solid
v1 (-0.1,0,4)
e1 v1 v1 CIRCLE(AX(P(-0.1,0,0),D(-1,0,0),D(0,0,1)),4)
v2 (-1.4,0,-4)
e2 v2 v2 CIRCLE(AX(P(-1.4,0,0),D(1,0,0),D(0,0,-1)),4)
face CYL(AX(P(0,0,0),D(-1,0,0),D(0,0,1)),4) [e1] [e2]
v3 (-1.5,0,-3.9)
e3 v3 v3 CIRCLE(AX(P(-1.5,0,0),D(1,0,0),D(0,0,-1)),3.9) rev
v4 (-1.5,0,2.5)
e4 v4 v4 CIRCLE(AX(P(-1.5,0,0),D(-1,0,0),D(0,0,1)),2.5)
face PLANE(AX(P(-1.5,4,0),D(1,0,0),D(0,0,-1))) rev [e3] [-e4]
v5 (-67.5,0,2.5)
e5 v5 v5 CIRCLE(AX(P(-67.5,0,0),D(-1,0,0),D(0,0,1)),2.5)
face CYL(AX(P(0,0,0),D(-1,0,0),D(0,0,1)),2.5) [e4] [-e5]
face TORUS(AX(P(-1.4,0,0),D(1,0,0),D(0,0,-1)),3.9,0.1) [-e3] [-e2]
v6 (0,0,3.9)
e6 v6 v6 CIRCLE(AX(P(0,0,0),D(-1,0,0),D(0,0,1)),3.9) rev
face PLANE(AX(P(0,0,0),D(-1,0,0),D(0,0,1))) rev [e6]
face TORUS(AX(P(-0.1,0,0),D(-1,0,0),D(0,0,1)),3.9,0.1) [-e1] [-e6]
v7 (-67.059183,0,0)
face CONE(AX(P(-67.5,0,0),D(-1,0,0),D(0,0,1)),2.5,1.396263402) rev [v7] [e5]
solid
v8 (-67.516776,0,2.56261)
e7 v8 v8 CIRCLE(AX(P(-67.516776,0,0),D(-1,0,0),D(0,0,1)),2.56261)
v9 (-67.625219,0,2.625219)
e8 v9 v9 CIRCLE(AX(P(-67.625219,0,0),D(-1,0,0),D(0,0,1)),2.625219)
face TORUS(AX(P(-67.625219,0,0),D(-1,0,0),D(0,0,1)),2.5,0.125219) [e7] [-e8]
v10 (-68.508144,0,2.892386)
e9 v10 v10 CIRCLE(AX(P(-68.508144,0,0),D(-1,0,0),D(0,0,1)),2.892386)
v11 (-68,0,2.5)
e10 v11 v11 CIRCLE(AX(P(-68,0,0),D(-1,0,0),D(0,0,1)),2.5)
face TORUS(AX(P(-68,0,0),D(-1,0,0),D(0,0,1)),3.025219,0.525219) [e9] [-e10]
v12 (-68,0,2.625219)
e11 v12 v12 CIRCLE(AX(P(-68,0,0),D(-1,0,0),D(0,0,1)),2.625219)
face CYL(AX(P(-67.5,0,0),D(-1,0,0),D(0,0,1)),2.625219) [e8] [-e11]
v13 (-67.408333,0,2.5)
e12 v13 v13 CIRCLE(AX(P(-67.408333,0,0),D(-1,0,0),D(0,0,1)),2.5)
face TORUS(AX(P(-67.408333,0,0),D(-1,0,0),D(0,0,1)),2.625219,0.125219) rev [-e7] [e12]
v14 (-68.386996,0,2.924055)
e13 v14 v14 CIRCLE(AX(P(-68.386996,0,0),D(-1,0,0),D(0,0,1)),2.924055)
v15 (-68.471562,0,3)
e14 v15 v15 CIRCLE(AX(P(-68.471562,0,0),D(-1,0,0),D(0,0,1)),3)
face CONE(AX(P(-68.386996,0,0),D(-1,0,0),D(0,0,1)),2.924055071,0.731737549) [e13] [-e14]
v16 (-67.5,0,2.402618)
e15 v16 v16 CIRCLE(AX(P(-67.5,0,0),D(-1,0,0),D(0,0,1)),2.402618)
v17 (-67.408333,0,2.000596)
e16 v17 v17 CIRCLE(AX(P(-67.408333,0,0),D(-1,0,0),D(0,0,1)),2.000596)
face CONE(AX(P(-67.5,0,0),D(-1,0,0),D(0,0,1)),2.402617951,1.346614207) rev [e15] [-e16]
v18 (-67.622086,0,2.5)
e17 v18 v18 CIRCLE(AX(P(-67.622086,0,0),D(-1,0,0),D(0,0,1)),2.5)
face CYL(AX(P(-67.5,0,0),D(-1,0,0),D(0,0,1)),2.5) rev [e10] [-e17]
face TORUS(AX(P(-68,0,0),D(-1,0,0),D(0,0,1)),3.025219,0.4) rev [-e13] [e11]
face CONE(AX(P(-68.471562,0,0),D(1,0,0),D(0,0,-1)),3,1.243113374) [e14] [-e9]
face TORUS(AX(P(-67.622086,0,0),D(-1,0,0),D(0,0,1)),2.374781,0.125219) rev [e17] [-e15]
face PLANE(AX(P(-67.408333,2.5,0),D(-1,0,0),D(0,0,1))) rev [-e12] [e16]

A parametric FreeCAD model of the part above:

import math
import FreeCAD as App
import Part
import Sketcher

V = App.Vector
Q = App.Units.Quantity


def edges_at(feature, points):
    """Names of the edges that pass closest to the given points."""
    edges = feature.Shape.Edges
    near = lambda p: min(range(len(edges)), key=lambda i: edges[i].distToShape(Part.Vertex(*p))[0])
    return sorted({f"Edge{near(p) + 1}" for p in points})


def add_polygon(sketch, points):
    """Adds a closed chain of lines whose ends are joined by coincident constraints."""
    first, n = sketch.GeometryCount, len(points)
    for a, b in zip(points, points[1:] + points[:1]):
        sketch.addGeometry(Part.LineSegment(App.Vector(*a, 0), App.Vector(*b, 0)), False)
    for i in range(n):
        sketch.addConstraint(Sketcher.Constraint("Coincident", first + i, 2, first + (i + 1) % n, 1))

doc = App.newDocument("Part")
body = doc.addObject("PartDesign::Body", "Body")

sketch1 = body.newObject("Sketcher::SketchObject", "Sketch")
sketch1.AttachmentSupport = (doc.getObject("XY_Plane"), [""])
sketch1.MapMode = "FlatFace"
add_polygon(sketch1, [(-67.5, 0), (0, 0), (0, 4), (-1.5, 4), (-1.5, 2.5), (-67.5, 2.5)])
sketch1.addConstraint([
    Sketcher.Constraint("Horizontal", 0),
    Sketcher.Constraint("Vertical", 1),
    Sketcher.Constraint("Horizontal", 2),
    Sketcher.Constraint("Vertical", 3),
    Sketcher.Constraint("Horizontal", 4),
    Sketcher.Constraint("Vertical", 5),
    Sketcher.Constraint("Coincident", 0, 2, -1, 1),
    Sketcher.Constraint("Equal", 2, 3),
    Sketcher.Constraint("DistanceX", 4, 2, 4, 1, 66.0),
    Sketcher.Constraint("DistanceY", 1, 1, 1, 2, 4.0),
    Sketcher.Constraint("DistanceX", 0, 1, 0, 2, 67.5),
])
revolution = body.newObject("PartDesign::Revolution", "Revolution")
revolution.Profile = sketch1
revolution.ReferenceAxis = (sketch1, ["H_Axis"])
revolution.Angle = 360
doc.recompute()

fillet = body.newObject("PartDesign::Fillet", "Fillet")
fillet.Base = (revolution, edges_at(revolution, [(-1.5, 0, -4), (0, 0, -4)]))
fillet.Radius = 0.1

sketch2 = body.newObject("Sketcher::SketchObject", "Sketch001")
sketch2.AttachmentSupport = (doc.getObject("XZ_Plane"), [""])
sketch2.MapMode = "FlatFace"
add_polygon(sketch2, [(-67.5, 0), (-67.5, 2.5), (-67.059183, 0)])
sketch2.addConstraint([
    Sketcher.Constraint("Vertical", 0),
    Sketcher.Constraint("Horizontal", 2),
    Sketcher.Constraint("PointOnObject", 1, 2, -1),
    Sketcher.Constraint("Angle", 1, Q("-80 deg")),
    Sketcher.Constraint("DistanceY", 0, 1, 0, 2, 2.5),
    Sketcher.Constraint("DistanceX", 0, 2, -1, 1, 67.5),
])
groove = body.newObject("PartDesign::Groove", "Groove")
groove.Profile = sketch2
groove.ReferenceAxis = (sketch2, ["H_Axis"])
groove.Angle = 360
body2 = doc.addObject("PartDesign::Body", "Body001")

sketch3 = body2.newObject("Sketcher::SketchObject", "Sketch002")
sketch3.AttachmentSupport = (doc.getObject("XY_Plane001"), [""])
sketch3.MapMode = "FlatFace"
sketch3.addGeometry([
    Part.LineSegment(V(-68, 2.5, 0), V(-67.622086, 2.5, 0)),
    Part.ArcOfCircle(Part.Circle(V(-67.622086, 2.374781, 0), V(0, 0, 1), 0.125219), math.radians(12.84469), math.radians(90)),
    Part.LineSegment(V(-67.5, 2.402618, 0), V(-67.408333, 2.000596, 0)),
    Part.LineSegment(V(-67.408333, 2.000596, 0), V(-67.408333, 2.5, 0)),
    Part.ArcOfCircle(Part.Circle(V(-67.408333, 2.625219, 0), V(0, 0, 1), 0.125219), math.radians(-150.000004), math.radians(-90)),
    Part.ArcOfCircle(Part.Circle(V(-67.625219, 2.5, 0), V(0, 0, 1), 0.125219), math.radians(29.999997), math.radians(90)),
    Part.LineSegment(V(-67.625219, 2.625219, 0), V(-68, 2.625219, 0)),
    Part.ArcOfCircle(Part.Circle(V(-68, 3.025219, 0), V(0, 0, 1), 0.4), math.radians(-165.350162), math.radians(-90)),
    Part.LineSegment(V(-68.386996, 2.924055, 0), V(-68.471562, 3, 0)),
    Part.LineSegment(V(-68.471562, 3, 0), V(-68.508144, 2.892386, 0)),
    Part.ArcOfCircle(Part.Circle(V(-68, 3.025219, 0), V(0, 0, 1), 0.525219), math.radians(-165.350162), math.radians(-90)),
], False)
sketch3.addConstraint([
    Sketcher.Constraint("Tangent", 0, 2, 1, 2),
    Sketcher.Constraint("Tangent", 1, 1, 2, 1),
    Sketcher.Constraint("Coincident", 2, 2, 3, 1),
    Sketcher.Constraint("Coincident", 3, 2, 4, 2),
    Sketcher.Constraint("Tangent", 4, 1, 5, 1),
    Sketcher.Constraint("Tangent", 5, 2, 6, 1),
    Sketcher.Constraint("Tangent", 6, 2, 7, 2),
    Sketcher.Constraint("Coincident", 7, 1, 8, 1),
    Sketcher.Constraint("Coincident", 8, 2, 9, 1),
    Sketcher.Constraint("Coincident", 9, 2, 10, 1),
    Sketcher.Constraint("Tangent", 10, 2, 0, 1),
    Sketcher.Constraint("Horizontal", 0),
    Sketcher.Constraint("Vertical", 3),
    Sketcher.Constraint("Horizontal", 6),
    Sketcher.Constraint("Coincident", 10, 3, 7, 3),
    Sketcher.Constraint("Equal", 1, 4),
    Sketcher.Constraint("Equal", 4, 5),
    Sketcher.Constraint("Horizontal", 5, 3, 0, 2),
    Sketcher.Constraint("Horizontal", 0, 2, 3, 2),
    Sketcher.Constraint("Vertical", 4, 3, 2, 2),
    Sketcher.Constraint("Equal", 8, 9),
    Sketcher.Constraint("Radius", 7, 0.4),
    Sketcher.Constraint("DistanceX", 7, 3, -1, 1, 68.0),
    Sketcher.Constraint("DistanceY", -1, 1, 8, 2, 3.0),
    Sketcher.Constraint("DistanceY", -1, 1, 5, 3, 2.5),
    Sketcher.Constraint("DistanceX", 1, 1, -1, 1, 67.5),
    Sketcher.Constraint("Radius", 1, 0.125219),
    Sketcher.Constraint("DistanceX", 6, 2, 6, 1, 0.374781),
    Sketcher.Constraint("DistanceY", 1, 1, 4, 3, 0.222602),
    Sketcher.Constraint("DistanceX", 9, 2, 7, 1, 0.121149),
    Sketcher.Constraint("Distance", 8, 0.113662),
])
revolution2 = body2.newObject("PartDesign::Revolution", "Revolution001")
revolution2.Profile = sketch3
revolution2.ReferenceAxis = (sketch3, ["H_Axis"])
revolution2.Angle = 360

doc.recompute()
